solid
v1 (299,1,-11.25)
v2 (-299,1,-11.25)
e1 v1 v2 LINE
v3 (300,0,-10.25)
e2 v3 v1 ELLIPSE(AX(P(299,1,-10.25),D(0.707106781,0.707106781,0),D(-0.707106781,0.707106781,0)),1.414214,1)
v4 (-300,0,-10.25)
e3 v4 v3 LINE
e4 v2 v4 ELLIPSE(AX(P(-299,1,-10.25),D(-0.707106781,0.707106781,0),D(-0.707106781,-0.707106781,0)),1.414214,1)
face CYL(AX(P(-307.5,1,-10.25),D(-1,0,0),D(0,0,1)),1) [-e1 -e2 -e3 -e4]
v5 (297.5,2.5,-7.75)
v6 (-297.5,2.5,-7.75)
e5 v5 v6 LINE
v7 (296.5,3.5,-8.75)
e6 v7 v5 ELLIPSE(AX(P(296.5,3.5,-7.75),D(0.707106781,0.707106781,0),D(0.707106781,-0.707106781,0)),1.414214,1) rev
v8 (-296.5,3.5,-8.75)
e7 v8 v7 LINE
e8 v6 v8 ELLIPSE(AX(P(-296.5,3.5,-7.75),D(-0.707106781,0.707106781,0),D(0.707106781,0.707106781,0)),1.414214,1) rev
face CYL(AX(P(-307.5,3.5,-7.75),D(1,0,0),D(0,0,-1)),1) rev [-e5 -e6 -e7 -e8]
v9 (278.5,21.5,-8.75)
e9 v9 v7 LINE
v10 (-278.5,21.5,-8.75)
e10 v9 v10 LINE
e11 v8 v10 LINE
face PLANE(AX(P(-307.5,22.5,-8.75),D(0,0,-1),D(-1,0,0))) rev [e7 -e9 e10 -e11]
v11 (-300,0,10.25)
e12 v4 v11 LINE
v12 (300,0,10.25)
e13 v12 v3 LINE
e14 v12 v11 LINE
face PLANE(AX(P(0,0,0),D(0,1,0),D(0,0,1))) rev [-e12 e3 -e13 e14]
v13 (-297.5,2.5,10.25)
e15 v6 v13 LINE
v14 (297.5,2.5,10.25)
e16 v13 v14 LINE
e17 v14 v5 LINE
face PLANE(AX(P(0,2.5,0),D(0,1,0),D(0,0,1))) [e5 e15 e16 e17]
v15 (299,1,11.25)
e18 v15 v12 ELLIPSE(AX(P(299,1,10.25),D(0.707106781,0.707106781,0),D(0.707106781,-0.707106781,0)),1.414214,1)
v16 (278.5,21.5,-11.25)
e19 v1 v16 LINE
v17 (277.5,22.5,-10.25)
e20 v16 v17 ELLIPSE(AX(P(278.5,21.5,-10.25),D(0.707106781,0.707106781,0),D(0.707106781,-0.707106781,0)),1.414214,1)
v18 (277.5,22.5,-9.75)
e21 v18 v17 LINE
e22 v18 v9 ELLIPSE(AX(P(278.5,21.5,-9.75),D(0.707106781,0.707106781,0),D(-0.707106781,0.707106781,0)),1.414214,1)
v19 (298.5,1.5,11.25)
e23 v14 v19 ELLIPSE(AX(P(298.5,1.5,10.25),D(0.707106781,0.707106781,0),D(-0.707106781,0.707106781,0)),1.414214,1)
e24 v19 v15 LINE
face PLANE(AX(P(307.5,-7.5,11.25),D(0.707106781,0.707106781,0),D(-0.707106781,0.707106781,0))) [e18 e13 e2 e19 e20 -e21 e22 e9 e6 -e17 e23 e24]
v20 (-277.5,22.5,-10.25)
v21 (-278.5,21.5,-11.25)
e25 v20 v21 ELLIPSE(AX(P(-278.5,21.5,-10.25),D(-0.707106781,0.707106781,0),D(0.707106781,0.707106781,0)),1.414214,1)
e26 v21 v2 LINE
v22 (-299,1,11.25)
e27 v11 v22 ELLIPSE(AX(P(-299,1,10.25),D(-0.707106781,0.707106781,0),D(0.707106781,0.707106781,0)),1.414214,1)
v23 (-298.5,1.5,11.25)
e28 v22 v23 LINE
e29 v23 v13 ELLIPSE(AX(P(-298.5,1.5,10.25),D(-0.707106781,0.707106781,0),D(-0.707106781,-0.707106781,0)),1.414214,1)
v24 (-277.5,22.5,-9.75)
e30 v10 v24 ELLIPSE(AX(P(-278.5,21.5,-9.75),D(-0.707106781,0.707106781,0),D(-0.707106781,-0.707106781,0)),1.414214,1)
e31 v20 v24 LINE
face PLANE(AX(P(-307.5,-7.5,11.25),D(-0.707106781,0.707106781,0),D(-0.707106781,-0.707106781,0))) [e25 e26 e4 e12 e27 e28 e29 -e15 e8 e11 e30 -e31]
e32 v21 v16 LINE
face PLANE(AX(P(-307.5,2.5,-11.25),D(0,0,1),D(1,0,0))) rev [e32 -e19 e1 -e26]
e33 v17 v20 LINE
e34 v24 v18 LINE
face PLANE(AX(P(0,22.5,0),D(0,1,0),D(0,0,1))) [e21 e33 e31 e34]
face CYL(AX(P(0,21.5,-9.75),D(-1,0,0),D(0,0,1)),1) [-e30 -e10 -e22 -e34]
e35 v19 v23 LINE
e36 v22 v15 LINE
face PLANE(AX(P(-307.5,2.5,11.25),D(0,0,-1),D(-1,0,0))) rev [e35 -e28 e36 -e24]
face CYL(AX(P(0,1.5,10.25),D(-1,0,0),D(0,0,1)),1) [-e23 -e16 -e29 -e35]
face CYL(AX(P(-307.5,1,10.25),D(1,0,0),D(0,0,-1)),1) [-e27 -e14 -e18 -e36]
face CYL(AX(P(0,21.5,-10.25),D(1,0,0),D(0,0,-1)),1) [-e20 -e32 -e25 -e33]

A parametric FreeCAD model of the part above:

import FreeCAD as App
import Part
import Sketcher
from FreeCAD import Vector


def edges_at(feature, points):
    """Names of the edges that pass closest to the given points."""
    edges = feature.Shape.Edges
    near = lambda p: min(range(len(edges)), key=lambda i: edges[i].distToShape(Part.Vertex(*p))[0])
    return sorted({f"Edge{near(p) + 1}" for p in points})


def add_polygon(sketch, points):
    """Adds a closed chain of lines whose ends are joined by coincident constraints."""
    first, n = sketch.GeometryCount, len(points)
    for a, b in zip(points, points[1:] + points[:1]):
        sketch.addGeometry(Part.LineSegment(App.Vector(*a, 0), App.Vector(*b, 0)), False)
    for i in range(n):
        sketch.addConstraint(Sketcher.Constraint("Coincident", first + i, 2, first + (i + 1) % n, 1))

doc = App.newDocument("Part")
body = doc.addObject("PartDesign::Body", "Body")

sketch1 = doc.addObject("Sketcher::SketchObject", "Sketch")
body.addObject(sketch1)
sketch1.AttachmentSupport = (doc.XZ_Plane, [""])
sketch1.MapMode = "FlatFace"
add_polygon(sketch1, [(-307.5, -11.25), (-307.5, 11.25), (307.5, 11.25), (307.5, -11.25)])
sketch1.addConstraint([
    Sketcher.Constraint("Vertical", 0),
    Sketcher.Constraint("Horizontal", 1),
    Sketcher.Constraint("Vertical", 2),
    Sketcher.Constraint("Horizontal", 3),
    Sketcher.Constraint("Symmetric", 0, 2, 2, 2, -1, 1),
    Sketcher.Constraint("DistanceX", 1, 1, 1, 2, 615.0),
    Sketcher.Constraint("DistanceY", 0, 1, 0, 2, 22.5),
])
pad1 = doc.addObject("PartDesign::Pad", "Pad")
body.addObject(pad1)
pad1.Profile = sketch1
pad1.Length = 2.5
pad1.Reversed = True

sketch2 = doc.addObject("Sketcher::SketchObject", "Sketch001")
body.addObject(sketch2)
sketch2.AttachmentSupport = (doc.XZ_Plane, [""])
sketch2.MapMode = "FlatFace"
sketch2.AttachmentOffset = App.Placement(Vector(0, 0, -2.5), App.Rotation())
add_polygon(sketch2, [(-307.5, -11.25), (-307.5, -8.75), (307.5, -8.75), (307.5, -11.25)])
sketch2.addConstraint([
    Sketcher.Constraint("Vertical", 0),
    Sketcher.Constraint("Horizontal", 1),
    Sketcher.Constraint("Vertical", 2),
    Sketcher.Constraint("Horizontal", 3),
    Sketcher.Constraint("DistanceX", 1, 1, 1, 2, 615.0),
    Sketcher.Constraint("DistanceY", 0, 1, 0, 2, 2.5),
    Sketcher.Constraint("DistanceX", 0, 2, -1, 1, 307.5),
    Sketcher.Constraint("DistanceY", 0, 2, -1, 1, 8.75),
])
pad2 = doc.addObject("PartDesign::Pad", "Pad001")
body.addObject(pad2)
pad2.Profile = sketch2
pad2.Length = 20
pad2.Reversed = True

sketch3 = doc.addObject("Sketcher::SketchObject", "Sketch002")
body.addObject(sketch3)
sketch3.AttachmentSupport = (doc.XY_Plane, [""])
sketch3.MapMode = "FlatFace"
sketch3.AttachmentOffset = App.Placement(Vector(0, 0, -8.75), App.Rotation())
add_polygon(sketch3, [(-307.5, 22.5), (-307.5, -7.5), (-277.5, 22.5)])
add_polygon(sketch3, [(307.5, -7.5), (307.5, 22.5), (277.5, 22.5)])
sketch3.addConstraint([
    Sketcher.Constraint("Vertical", 0),
    Sketcher.Constraint("Horizontal", 2),
    Sketcher.Constraint("Vertical", 3),
    Sketcher.Constraint("Horizontal", 4),
    Sketcher.Constraint("Symmetric", 2, 2, 3, 2, -2),
    Sketcher.Constraint("Perpendicular", 1, 5),
    Sketcher.Constraint("Horizontal", 0, 2, 5, 2),
    Sketcher.Constraint("Equal", 2, 4),
    Sketcher.Constraint("DistanceX", 2, 2, 2, 1, 30.0),
    Sketcher.Constraint("DistanceX", 1, 2, 3, 2, 585.0),
    Sketcher.Constraint("DistanceY", 0, 2, -1, 1, 7.5),
])
pocket1 = doc.addObject("PartDesign::Pocket", "Pocket")
body.addObject(pocket1)
pocket1.Profile = sketch3
pocket1.Type = "ThroughAll"
pocket1.Midplane = True
doc.recompute()

fillet = doc.addObject("PartDesign::Fillet", "Fillet")
body.addObject(fillet)
fillet.Base = (pocket1, edges_at(pocket1, [
    (0, 22.5, -8.75),
    (0, 2.5, -8.75),
    (0, 0, 11.25),
    (0, 2.5, 11.25),
    (0, 22.5, -11.25),
    (0, 0, -11.25),
]))
fillet.Radius = 1

doc.recompute()
